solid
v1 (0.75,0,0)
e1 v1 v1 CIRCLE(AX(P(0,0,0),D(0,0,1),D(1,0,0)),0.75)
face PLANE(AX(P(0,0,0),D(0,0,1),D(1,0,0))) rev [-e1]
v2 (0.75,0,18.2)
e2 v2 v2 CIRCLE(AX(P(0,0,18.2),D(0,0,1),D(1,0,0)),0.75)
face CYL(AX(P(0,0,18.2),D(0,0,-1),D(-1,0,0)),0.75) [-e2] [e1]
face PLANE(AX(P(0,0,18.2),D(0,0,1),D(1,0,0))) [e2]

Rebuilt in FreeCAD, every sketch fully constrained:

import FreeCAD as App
import Part
import Sketcher
from FreeCAD import Vector

doc = App.newDocument("Part")
body = doc.addObject("PartDesign::Body", "Body")

sketch1 = body.newObject("Sketcher::SketchObject", "Sketch")
sketch1.AttachmentSupport = (doc.getObject("XY_Plane"), [""])
sketch1.MapMode = "FlatFace"
sketch1.addGeometry(Part.Circle(Vector(0, 0, 0), Vector(0, 0, 1), 0.8), False)
sketch1.addConstraint(Sketcher.Constraint("Coincident", 0, 3, -1, 1))
sketch1.addConstraint(Sketcher.Constraint("Diameter", 0, 1.5))
pad1 = body.newObject("PartDesign::Pad", "Pad")
pad1.Profile = sketch1
pad1.Length = 18.2

doc.recompute()
